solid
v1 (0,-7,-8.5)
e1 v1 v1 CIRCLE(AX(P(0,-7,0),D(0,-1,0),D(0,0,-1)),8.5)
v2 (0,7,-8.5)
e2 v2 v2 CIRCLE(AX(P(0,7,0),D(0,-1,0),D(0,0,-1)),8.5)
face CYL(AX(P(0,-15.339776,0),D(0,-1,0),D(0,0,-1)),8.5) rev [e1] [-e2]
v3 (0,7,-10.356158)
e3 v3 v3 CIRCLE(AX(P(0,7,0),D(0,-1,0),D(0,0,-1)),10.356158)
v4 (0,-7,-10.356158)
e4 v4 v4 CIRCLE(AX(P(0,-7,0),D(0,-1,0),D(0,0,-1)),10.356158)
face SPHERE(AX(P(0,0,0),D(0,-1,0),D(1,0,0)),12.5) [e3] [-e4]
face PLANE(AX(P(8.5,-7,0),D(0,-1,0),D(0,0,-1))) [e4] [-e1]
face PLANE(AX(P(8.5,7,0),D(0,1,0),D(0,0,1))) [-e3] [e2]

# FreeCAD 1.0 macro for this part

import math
import FreeCAD as App
import Part
import Sketcher

doc = App.newDocument("Part")
body = doc.addObject("PartDesign::Body", "Body")

# Sketch on XY plane
sketch1 = body.newObject("Sketcher::SketchObject", "Sketch")
sketch1.AttachmentSupport = (doc.getObject("XY_Plane"), [""])
sketch1.MapMode = "FlatFace"
sketch1.addGeometry([
    Part.LineSegment(App.Vector(8.5, -7, 0), App.Vector(10.356158, -7, 0)),
    Part.ArcOfCircle(Part.Circle(App.Vector(0, 0, 0), App.Vector(0, 0, 1), 12.5), math.radians(-34.055798), math.radians(34.055798)),
    Part.LineSegment(App.Vector(10.356158, 7, 0), App.Vector(8.5, 7, 0)),
    Part.LineSegment(App.Vector(8.5, 7, 0), App.Vector(8.5, -7, 0)),
], False)
sketch1.addConstraint([
    Sketcher.Constraint("Coincident", 0, 2, 1, 1),
    Sketcher.Constraint("Coincident", 1, 2, 2, 1),
    Sketcher.Constraint("Coincident", 2, 2, 3, 1),
    Sketcher.Constraint("Coincident", 3, 2, 0, 1),
    Sketcher.Constraint("Horizontal", 0),
    Sketcher.Constraint("Horizontal", 2),
    Sketcher.Constraint("Vertical", 3),
    Sketcher.Constraint("Coincident", 1, 3, -1, 1),
    Sketcher.Constraint("Vertical", 0, 2, 1, 2),
    Sketcher.Constraint("Radius", 1, 12.5),
    Sketcher.Constraint("DistanceY", 3, 2, 3, 1, 14.0),
    Sketcher.Constraint("DistanceX", -1, 1, 2, 2, 8.5),
])
revolution = body.newObject("PartDesign::Revolution", "Revolution")
revolution.Profile = sketch1
revolution.ReferenceAxis = (sketch1, ["V_Axis"])
revolution.Angle = 360

doc.recompute()
